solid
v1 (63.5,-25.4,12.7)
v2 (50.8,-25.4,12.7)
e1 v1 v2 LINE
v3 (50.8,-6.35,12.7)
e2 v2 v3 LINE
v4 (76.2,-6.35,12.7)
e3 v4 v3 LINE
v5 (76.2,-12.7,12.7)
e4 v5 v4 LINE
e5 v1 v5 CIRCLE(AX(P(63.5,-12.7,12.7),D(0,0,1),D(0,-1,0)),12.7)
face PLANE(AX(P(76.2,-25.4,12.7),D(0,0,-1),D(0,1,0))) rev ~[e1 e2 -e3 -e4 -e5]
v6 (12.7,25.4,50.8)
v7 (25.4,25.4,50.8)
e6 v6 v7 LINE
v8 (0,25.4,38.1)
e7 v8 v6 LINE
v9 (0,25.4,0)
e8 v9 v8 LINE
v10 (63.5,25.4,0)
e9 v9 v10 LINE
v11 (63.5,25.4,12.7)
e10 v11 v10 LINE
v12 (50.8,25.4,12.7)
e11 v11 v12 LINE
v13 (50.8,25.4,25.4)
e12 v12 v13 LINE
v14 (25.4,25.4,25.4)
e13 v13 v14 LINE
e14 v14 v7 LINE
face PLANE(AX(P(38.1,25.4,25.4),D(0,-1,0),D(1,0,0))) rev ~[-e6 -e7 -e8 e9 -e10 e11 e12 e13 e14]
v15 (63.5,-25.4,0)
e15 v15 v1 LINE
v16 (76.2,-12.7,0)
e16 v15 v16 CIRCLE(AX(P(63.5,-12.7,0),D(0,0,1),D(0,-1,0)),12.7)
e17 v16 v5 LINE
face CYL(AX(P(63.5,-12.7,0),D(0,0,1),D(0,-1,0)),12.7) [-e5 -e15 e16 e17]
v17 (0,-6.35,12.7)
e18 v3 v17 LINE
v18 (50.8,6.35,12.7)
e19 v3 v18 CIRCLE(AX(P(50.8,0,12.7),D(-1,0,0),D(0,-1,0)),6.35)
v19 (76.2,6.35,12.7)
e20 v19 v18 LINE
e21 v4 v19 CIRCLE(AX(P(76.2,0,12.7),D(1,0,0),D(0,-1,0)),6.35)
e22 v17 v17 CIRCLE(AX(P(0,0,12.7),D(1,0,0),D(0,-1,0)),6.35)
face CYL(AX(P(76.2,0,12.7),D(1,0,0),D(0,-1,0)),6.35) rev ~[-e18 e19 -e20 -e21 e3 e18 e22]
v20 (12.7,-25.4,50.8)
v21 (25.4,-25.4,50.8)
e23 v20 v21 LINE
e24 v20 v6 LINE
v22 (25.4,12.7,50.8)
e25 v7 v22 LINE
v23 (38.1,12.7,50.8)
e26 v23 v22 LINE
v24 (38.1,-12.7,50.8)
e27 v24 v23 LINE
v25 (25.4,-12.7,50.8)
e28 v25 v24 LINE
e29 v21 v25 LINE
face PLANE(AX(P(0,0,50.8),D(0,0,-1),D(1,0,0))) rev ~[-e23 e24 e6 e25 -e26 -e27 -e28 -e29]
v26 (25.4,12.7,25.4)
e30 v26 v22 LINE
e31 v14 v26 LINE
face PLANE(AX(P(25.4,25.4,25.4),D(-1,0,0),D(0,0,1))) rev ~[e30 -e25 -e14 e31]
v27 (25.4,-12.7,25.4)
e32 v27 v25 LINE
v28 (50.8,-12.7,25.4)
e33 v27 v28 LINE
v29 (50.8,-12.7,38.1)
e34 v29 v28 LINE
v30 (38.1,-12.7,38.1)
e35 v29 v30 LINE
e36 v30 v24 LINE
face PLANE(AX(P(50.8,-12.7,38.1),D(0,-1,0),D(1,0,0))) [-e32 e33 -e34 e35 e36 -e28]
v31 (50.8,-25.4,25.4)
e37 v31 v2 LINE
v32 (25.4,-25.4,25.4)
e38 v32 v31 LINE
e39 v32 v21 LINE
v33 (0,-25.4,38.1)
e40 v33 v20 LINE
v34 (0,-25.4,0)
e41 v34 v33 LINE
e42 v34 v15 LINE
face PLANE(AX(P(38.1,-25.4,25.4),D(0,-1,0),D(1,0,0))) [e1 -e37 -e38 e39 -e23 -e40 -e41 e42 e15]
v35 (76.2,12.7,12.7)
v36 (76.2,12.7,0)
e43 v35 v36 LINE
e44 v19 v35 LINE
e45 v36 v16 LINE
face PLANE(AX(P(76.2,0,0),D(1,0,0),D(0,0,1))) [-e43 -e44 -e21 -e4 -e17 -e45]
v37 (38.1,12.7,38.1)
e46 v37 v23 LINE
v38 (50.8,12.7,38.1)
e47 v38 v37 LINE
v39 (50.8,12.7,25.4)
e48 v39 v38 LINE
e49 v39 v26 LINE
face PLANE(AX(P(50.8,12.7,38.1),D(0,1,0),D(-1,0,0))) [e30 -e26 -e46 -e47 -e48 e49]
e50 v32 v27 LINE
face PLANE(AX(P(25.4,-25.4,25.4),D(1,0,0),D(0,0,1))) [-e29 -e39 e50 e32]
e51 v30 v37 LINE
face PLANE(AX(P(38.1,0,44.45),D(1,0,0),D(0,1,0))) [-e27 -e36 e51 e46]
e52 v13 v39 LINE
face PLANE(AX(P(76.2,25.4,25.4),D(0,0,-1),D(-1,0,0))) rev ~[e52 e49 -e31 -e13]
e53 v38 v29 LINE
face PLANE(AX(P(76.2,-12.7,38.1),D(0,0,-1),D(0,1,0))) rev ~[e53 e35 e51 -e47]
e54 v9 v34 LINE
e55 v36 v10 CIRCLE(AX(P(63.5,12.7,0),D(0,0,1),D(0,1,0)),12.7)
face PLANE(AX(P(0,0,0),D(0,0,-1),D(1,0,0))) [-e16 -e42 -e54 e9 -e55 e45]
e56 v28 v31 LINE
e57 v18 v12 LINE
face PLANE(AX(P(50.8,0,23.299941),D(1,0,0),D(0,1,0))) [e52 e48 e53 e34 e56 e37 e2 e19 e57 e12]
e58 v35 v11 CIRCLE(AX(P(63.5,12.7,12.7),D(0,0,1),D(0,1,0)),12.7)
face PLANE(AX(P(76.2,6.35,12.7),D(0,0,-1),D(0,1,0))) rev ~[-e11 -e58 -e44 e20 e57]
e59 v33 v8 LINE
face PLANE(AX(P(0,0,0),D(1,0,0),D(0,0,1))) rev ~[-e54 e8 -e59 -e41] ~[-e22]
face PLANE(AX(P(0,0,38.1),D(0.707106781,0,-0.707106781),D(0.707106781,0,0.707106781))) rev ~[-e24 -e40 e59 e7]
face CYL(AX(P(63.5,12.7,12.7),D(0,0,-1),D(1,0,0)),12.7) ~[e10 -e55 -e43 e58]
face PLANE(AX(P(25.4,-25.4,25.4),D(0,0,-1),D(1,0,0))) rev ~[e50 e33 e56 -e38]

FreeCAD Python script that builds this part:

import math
import FreeCAD as App
import Part
import Sketcher
from FreeCAD import Vector
Q = App.Units.Quantity


def edges_at(feature, points):
    """Names of the edges that pass closest to the given points."""
    edges = feature.Shape.Edges
    near = lambda p: min(range(len(edges)), key=lambda i: edges[i].distToShape(Part.Vertex(*p))[0])
    return sorted({f"Edge{near(p) + 1}" for p in points})


def add_polygon(sketch, points):
    """Adds a closed chain of lines whose ends are joined by coincident constraints."""
    first, n = sketch.GeometryCount, len(points)
    for a, b in zip(points, points[1:] + points[:1]):
        sketch.addGeometry(Part.LineSegment(App.Vector(*a, 0), App.Vector(*b, 0)), False)
    for i in range(n):
        sketch.addConstraint(Sketcher.Constraint("Coincident", first + i, 2, first + (i + 1) % n, 1))

doc = App.newDocument("Part")
body = doc.addObject("PartDesign::Body", "Body")

# Sketch on XZ plane
sketch1 = body.newObject("Sketcher::SketchObject", "Sketch")
sketch1.AttachmentSupport = (doc.getObject("XZ_Plane"), [""])
sketch1.MapMode = "FlatFace"
add_polygon(sketch1, [(0, 51), (0, 0), (76, 0), (76, 51)])  # lines 0-3
sketch1.addConstraint([
    Sketcher.Constraint("Vertical", 0),
    Sketcher.Constraint("Horizontal", 1),
    Sketcher.Constraint("Vertical", 2),
    Sketcher.Constraint("Horizontal", 3),
    Sketcher.Constraint("Coincident", 0, 2, -1, 1),
    Sketcher.Constraint("DistanceX", 1, 1, 1, 2, Q("3 in")),
    Sketcher.Constraint("DistanceY", 0, 2, 0, 1, Q("2 in")),
])
pad1 = body.newObject("PartDesign::Pad", "Pad")
pad1.Profile = sketch1
pad1.Length = Q("2 in")
pad1.Midplane = True

# Sketch on XZ plane
sketch2 = body.newObject("Sketcher::SketchObject", "Sketch001")
sketch2.AttachmentSupport = (doc.getObject("XZ_Plane"), [""])
sketch2.MapMode = "FlatFace"
add_polygon(sketch2, [(13, 51), (0, 51), (0, 38)])  # lines 0-2
sketch2.addConstraint([
    Sketcher.Constraint("Horizontal", 0),
    Sketcher.Constraint("Vertical", 1),
    Sketcher.Constraint("PointOnObject", 0, 2, -2),
    Sketcher.Constraint("Equal", 0, 1),
    Sketcher.Constraint("DistanceX", 0, 2, 0, 1, Q("0.5 in")),
    Sketcher.Constraint("DistanceY", -1, 1, 0, 2, Q("2 in")),
])
pocket1 = body.newObject("PartDesign::Pocket", "Pocket")
pocket1.Profile = sketch2
pocket1.Length = Q("2 in")
pocket1.Midplane = True

# Sketch on YZ plane
sketch3 = body.newObject("Sketcher::SketchObject", "Sketch002")
sketch3.AttachmentSupport = (doc.getObject("YZ_Plane"), [""])
sketch3.MapMode = "FlatFace"
sketch3.AttachmentOffset = App.Placement(Vector(0, 0, 3 * 25.4), App.Rotation())
sketch3.addGeometry([
    Part.LineSegment(Vector(-25, 25, 0), Vector(-25, 13, 0)),  # 0
    Part.LineSegment(Vector(-25, 13, 0), Vector(-6, 13, 0)),  # 1
    Part.ArcOfCircle(Part.Circle(Vector(0, 13, 0), Vector(0, 0, 1), 6), math.radians(180), math.radians(360)),  # 2
    Part.LineSegment(Vector(6, 13, 0), Vector(25, 13, 0)),  # 3
    Part.LineSegment(Vector(25, 13, 0), Vector(25, 25, 0)),  # 4
    Part.LineSegment(Vector(25, 25, 0), Vector(13, 25, 0)),  # 5
    Part.LineSegment(Vector(13, 25, 0), Vector(13, 38, 0)),  # 6
    Part.LineSegment(Vector(13, 38, 0), Vector(-13, 38, 0)),  # 7
    Part.LineSegment(Vector(-13, 38, 0), Vector(-13, 25, 0)),  # 8
    Part.LineSegment(Vector(-13, 25, 0), Vector(-25, 25, 0)),  # 9
], False)
sketch3.addConstraint([
    Sketcher.Constraint("Coincident", 0, 2, 1, 1),
    Sketcher.Constraint("Coincident", 1, 2, 2, 1),
    Sketcher.Constraint("Coincident", 2, 2, 3, 1),
    Sketcher.Constraint("Coincident", 3, 2, 4, 1),
    Sketcher.Constraint("Coincident", 4, 2, 5, 1),
    Sketcher.Constraint("Coincident", 5, 2, 6, 1),
    Sketcher.Constraint("Coincident", 6, 2, 7, 1),
    Sketcher.Constraint("Coincident", 7, 2, 8, 1),
    Sketcher.Constraint("Coincident", 8, 2, 9, 1),
    Sketcher.Constraint("Coincident", 9, 2, 0, 1),
    Sketcher.Constraint("Vertical", 0),
    Sketcher.Constraint("Horizontal", 1),
    Sketcher.Constraint("Horizontal", 3),
    Sketcher.Constraint("Vertical", 4),
    Sketcher.Constraint("Horizontal", 5),
    Sketcher.Constraint("Vertical", 6),
    Sketcher.Constraint("Horizontal", 7),
    Sketcher.Constraint("Vertical", 8),
    Sketcher.Constraint("Horizontal", 9),
    Sketcher.Constraint("Symmetric", 1, 2, 2, 2, -2),
    Sketcher.Constraint("Symmetric", 5, 2, 8, 2, -2),
    Sketcher.Constraint("Horizontal", 2, 3, 0, 2),
    Sketcher.Constraint("Equal", 1, 3),
    Sketcher.Constraint("Equal", 9, 0),
    Sketcher.Constraint("Equal", 4, 6),
    Sketcher.Constraint("DistanceX", 7, 2, 7, 1, Q("1 in")),
    Sketcher.Constraint("Radius", 2, Q("0.25 in")),
    Sketcher.Constraint("DistanceX", 5, 2, 5, 1, Q("0.5 in")),
    Sketcher.Constraint("DistanceY", -1, 1, 4, 2, Q("1 in")),
])
pocket2 = body.newObject("PartDesign::Pocket", "Pocket001")
pocket2.Profile = sketch3
pocket2.Length = Q("3 in")
pocket2.Reversed = True

# Sketch on YZ plane
sketch4 = body.newObject("Sketcher::SketchObject", "Sketch003")
sketch4.AttachmentSupport = (doc.getObject("YZ_Plane"), [""])
sketch4.MapMode = "FlatFace"
sketch4.AttachmentOffset = App.Placement(Vector(0, 0, 3 * 25.4), App.Rotation())
sketch4.addGeometry([
    Part.LineSegment(Vector(-25, 25, 0), Vector(-25, 13, 0)),  # 0
    Part.LineSegment(Vector(-25, 13, 0), Vector(-6, 13, 0)),  # 1
    Part.ArcOfCircle(Part.Circle(Vector(0, 13, 0), Vector(0, 0, 1), 6), math.radians(0), math.radians(180)),  # 2
    Part.LineSegment(Vector(6, 13, 0), Vector(25, 13, 0)),  # 3
    Part.LineSegment(Vector(25, 13, 0), Vector(25, 25, 0)),  # 4
    Part.LineSegment(Vector(25, 25, 0), Vector(13, 25, 0)),  # 5
    Part.LineSegment(Vector(13, 25, 0), Vector(13, 38, 0)),  # 6
    Part.LineSegment(Vector(13, 38, 0), Vector(-13, 38, 0)),  # 7
    Part.LineSegment(Vector(-13, 38, 0), Vector(-13, 25, 0)),  # 8
    Part.LineSegment(Vector(-13, 25, 0), Vector(-25, 25, 0)),  # 9
], False)
sketch4.addConstraint([
    Sketcher.Constraint("Coincident", 0, 2, 1, 1),
    Sketcher.Constraint("Coincident", 1, 2, 2, 2),
    Sketcher.Constraint("Coincident", 2, 1, 3, 1),
    Sketcher.Constraint("Coincident", 3, 2, 4, 1),
    Sketcher.Constraint("Coincident", 4, 2, 5, 1),
    Sketcher.Constraint("Coincident", 5, 2, 6, 1),
    Sketcher.Constraint("Coincident", 6, 2, 7, 1),
    Sketcher.Constraint("Coincident", 7, 2, 8, 1),
    Sketcher.Constraint("Coincident", 8, 2, 9, 1),
    Sketcher.Constraint("Coincident", 9, 2, 0, 1),
    Sketcher.Constraint("Vertical", 0),
    Sketcher.Constraint("Horizontal", 1),
    Sketcher.Constraint("Horizontal", 3),
    Sketcher.Constraint("Vertical", 4),
    Sketcher.Constraint("Horizontal", 5),
    Sketcher.Constraint("Vertical", 6),
    Sketcher.Constraint("Horizontal", 7),
    Sketcher.Constraint("Vertical", 8),
    Sketcher.Constraint("Horizontal", 9),
    Sketcher.Constraint("Symmetric", 1, 2, 2, 1, -2),
    Sketcher.Constraint("Symmetric", 5, 2, 8, 2, -2),
    Sketcher.Constraint("Horizontal", 2, 3, 0, 2),
    Sketcher.Constraint("Equal", 1, 3),
    Sketcher.Constraint("Equal", 9, 0),
    Sketcher.Constraint("Equal", 4, 6),
    Sketcher.Constraint("DistanceX", 7, 2, 7, 1, Q("1 in")),
    Sketcher.Constraint("Radius", 2, Q("0.25 in")),
    Sketcher.Constraint("DistanceX", 5, 2, 5, 1, Q("0.5 in")),
    Sketcher.Constraint("DistanceY", -1, 1, 4, 2, Q("1 in")),
])
pocket3 = body.newObject("PartDesign::Pocket", "Pocket002")
pocket3.Profile = sketch4
pocket3.Length = Q("1 in")

# Sketch on YZ plane
sketch5 = body.newObject("Sketcher::SketchObject", "Sketch004")
sketch5.AttachmentSupport = (doc.getObject("YZ_Plane"), [""])
sketch5.MapMode = "FlatFace"
sketch5.AttachmentOffset = App.Placement(Vector(0, 0, 3 * 25.4), App.Rotation())
sketch5.addGeometry(Part.Circle(Vector(0, 13, 0), Vector(0, 0, 1), 6), False)
sketch5.addConstraint([
    Sketcher.Constraint("PointOnObject", 0, 3, -2),
    Sketcher.Constraint("Diameter", 0, Q("0.5 in")),
    Sketcher.Constraint("DistanceY", -1, 1, 0, 3, Q("0.5 in")),
])
pocket4 = body.newObject("PartDesign::Pocket", "Pocket003")
pocket4.Profile = sketch5
pocket4.Length = Q("3 in")

# Sketch on XZ plane
sketch6 = body.newObject("Sketcher::SketchObject", "Sketch005")
sketch6.AttachmentSupport = (doc.getObject("XZ_Plane"), [""])
sketch6.MapMode = "FlatFace"
sketch6.AttachmentOffset = App.Placement(Vector(0, 0, 1 * 25.4), App.Rotation())
add_polygon(sketch6, [(25, 51), (25, 25), (76, 25), (76, 51)])  # lines 0-3
sketch6.addConstraint([
    Sketcher.Constraint("Vertical", 0),
    Sketcher.Constraint("Horizontal", 1),
    Sketcher.Constraint("Vertical", 2),
    Sketcher.Constraint("Horizontal", 3),
    Sketcher.Constraint("DistanceX", 1, 1, 1, 2, Q("2 in")),
    Sketcher.Constraint("DistanceY", 0, 2, 0, 1, Q("1 in")),
    Sketcher.Constraint("DistanceX", -1, 1, 0, 2, Q("1 in")),
    Sketcher.Constraint("DistanceY", -1, 1, 0, 2, Q("1 in")),
])
pocket5 = body.newObject("PartDesign::Pocket", "Pocket004")
pocket5.Profile = sketch6
pocket5.Length = Q("0.5 in")

# Sketch on XZ plane
sketch7 = body.newObject("Sketcher::SketchObject", "Sketch006")
sketch7.AttachmentSupport = (doc.getObject("XZ_Plane"), [""])
sketch7.MapMode = "FlatFace"
sketch7.AttachmentOffset = App.Placement(Vector(0, 0, -1 * 25.4), App.Rotation())
add_polygon(sketch7, [(76, 51), (76, 25), (25, 25), (25, 51)])  # lines 0-3
sketch7.addConstraint([
    Sketcher.Constraint("Vertical", 0),
    Sketcher.Constraint("Horizontal", 1),
    Sketcher.Constraint("Vertical", 2),
    Sketcher.Constraint("Horizontal", 3),
    Sketcher.Constraint("DistanceX", 1, 2, 1, 1, Q("2 in")),
    Sketcher.Constraint("DistanceY", 0, 2, 0, 1, Q("1 in")),
    Sketcher.Constraint("DistanceX", -1, 1, 0, 2, Q("3 in")),
    Sketcher.Constraint("DistanceY", -1, 1, 0, 2, Q("1 in")),
])
pocket6 = body.newObject("PartDesign::Pocket", "Pocket005")
pocket6.Profile = sketch7
pocket6.Length = Q("0.5 in")
pocket6.Reversed = True

# Sketch on YZ plane
sketch8 = body.newObject("Sketcher::SketchObject", "Sketch007")
sketch8.AttachmentSupport = (doc.getObject("YZ_Plane"), [""])
sketch8.MapMode = "FlatFace"
sketch8.AttachmentOffset = App.Placement(Vector(0, 0, 3 * 25.4), App.Rotation())
add_polygon(sketch8, [(-13, 51), (-13, 38), (13, 38), (13, 51)])  # lines 0-3
sketch8.addConstraint([
    Sketcher.Constraint("Vertical", 0),
    Sketcher.Constraint("Horizontal", 1),
    Sketcher.Constraint("Vertical", 2),
    Sketcher.Constraint("Horizontal", 3),
    Sketcher.Constraint("DistanceX", 1, 1, 1, 2, Q("1 in")),
    Sketcher.Constraint("DistanceY", 0, 2, 0, 1, Q("0.5 in")),
    Sketcher.Constraint("DistanceY", -1, 1, 2, 2, Q("2 in")),
    Sketcher.Constraint("DistanceX", 0, 2, -1, 1, Q("0.5 in")),
])
pocket7 = body.newObject("PartDesign::Pocket", "Pocket006")
pocket7.Profile = sketch8
pocket7.Length = Q("1.5 in")
doc.recompute()

fillet = body.newObject("PartDesign::Fillet", "Fillet")
fillet.Base = (pocket7, edges_at(pocket7, [(76.2, -25.4, 6.35)]))
fillet.Radius = Q("0.5 in")
doc.recompute()

fillet2 = body.newObject("PartDesign::Fillet", "Fillet001")
fillet2.Base = (fillet, edges_at(fillet, [(76.2, 25.4, 6.35)]))
fillet2.Radius = Q("0.5 in")

doc.recompute()
